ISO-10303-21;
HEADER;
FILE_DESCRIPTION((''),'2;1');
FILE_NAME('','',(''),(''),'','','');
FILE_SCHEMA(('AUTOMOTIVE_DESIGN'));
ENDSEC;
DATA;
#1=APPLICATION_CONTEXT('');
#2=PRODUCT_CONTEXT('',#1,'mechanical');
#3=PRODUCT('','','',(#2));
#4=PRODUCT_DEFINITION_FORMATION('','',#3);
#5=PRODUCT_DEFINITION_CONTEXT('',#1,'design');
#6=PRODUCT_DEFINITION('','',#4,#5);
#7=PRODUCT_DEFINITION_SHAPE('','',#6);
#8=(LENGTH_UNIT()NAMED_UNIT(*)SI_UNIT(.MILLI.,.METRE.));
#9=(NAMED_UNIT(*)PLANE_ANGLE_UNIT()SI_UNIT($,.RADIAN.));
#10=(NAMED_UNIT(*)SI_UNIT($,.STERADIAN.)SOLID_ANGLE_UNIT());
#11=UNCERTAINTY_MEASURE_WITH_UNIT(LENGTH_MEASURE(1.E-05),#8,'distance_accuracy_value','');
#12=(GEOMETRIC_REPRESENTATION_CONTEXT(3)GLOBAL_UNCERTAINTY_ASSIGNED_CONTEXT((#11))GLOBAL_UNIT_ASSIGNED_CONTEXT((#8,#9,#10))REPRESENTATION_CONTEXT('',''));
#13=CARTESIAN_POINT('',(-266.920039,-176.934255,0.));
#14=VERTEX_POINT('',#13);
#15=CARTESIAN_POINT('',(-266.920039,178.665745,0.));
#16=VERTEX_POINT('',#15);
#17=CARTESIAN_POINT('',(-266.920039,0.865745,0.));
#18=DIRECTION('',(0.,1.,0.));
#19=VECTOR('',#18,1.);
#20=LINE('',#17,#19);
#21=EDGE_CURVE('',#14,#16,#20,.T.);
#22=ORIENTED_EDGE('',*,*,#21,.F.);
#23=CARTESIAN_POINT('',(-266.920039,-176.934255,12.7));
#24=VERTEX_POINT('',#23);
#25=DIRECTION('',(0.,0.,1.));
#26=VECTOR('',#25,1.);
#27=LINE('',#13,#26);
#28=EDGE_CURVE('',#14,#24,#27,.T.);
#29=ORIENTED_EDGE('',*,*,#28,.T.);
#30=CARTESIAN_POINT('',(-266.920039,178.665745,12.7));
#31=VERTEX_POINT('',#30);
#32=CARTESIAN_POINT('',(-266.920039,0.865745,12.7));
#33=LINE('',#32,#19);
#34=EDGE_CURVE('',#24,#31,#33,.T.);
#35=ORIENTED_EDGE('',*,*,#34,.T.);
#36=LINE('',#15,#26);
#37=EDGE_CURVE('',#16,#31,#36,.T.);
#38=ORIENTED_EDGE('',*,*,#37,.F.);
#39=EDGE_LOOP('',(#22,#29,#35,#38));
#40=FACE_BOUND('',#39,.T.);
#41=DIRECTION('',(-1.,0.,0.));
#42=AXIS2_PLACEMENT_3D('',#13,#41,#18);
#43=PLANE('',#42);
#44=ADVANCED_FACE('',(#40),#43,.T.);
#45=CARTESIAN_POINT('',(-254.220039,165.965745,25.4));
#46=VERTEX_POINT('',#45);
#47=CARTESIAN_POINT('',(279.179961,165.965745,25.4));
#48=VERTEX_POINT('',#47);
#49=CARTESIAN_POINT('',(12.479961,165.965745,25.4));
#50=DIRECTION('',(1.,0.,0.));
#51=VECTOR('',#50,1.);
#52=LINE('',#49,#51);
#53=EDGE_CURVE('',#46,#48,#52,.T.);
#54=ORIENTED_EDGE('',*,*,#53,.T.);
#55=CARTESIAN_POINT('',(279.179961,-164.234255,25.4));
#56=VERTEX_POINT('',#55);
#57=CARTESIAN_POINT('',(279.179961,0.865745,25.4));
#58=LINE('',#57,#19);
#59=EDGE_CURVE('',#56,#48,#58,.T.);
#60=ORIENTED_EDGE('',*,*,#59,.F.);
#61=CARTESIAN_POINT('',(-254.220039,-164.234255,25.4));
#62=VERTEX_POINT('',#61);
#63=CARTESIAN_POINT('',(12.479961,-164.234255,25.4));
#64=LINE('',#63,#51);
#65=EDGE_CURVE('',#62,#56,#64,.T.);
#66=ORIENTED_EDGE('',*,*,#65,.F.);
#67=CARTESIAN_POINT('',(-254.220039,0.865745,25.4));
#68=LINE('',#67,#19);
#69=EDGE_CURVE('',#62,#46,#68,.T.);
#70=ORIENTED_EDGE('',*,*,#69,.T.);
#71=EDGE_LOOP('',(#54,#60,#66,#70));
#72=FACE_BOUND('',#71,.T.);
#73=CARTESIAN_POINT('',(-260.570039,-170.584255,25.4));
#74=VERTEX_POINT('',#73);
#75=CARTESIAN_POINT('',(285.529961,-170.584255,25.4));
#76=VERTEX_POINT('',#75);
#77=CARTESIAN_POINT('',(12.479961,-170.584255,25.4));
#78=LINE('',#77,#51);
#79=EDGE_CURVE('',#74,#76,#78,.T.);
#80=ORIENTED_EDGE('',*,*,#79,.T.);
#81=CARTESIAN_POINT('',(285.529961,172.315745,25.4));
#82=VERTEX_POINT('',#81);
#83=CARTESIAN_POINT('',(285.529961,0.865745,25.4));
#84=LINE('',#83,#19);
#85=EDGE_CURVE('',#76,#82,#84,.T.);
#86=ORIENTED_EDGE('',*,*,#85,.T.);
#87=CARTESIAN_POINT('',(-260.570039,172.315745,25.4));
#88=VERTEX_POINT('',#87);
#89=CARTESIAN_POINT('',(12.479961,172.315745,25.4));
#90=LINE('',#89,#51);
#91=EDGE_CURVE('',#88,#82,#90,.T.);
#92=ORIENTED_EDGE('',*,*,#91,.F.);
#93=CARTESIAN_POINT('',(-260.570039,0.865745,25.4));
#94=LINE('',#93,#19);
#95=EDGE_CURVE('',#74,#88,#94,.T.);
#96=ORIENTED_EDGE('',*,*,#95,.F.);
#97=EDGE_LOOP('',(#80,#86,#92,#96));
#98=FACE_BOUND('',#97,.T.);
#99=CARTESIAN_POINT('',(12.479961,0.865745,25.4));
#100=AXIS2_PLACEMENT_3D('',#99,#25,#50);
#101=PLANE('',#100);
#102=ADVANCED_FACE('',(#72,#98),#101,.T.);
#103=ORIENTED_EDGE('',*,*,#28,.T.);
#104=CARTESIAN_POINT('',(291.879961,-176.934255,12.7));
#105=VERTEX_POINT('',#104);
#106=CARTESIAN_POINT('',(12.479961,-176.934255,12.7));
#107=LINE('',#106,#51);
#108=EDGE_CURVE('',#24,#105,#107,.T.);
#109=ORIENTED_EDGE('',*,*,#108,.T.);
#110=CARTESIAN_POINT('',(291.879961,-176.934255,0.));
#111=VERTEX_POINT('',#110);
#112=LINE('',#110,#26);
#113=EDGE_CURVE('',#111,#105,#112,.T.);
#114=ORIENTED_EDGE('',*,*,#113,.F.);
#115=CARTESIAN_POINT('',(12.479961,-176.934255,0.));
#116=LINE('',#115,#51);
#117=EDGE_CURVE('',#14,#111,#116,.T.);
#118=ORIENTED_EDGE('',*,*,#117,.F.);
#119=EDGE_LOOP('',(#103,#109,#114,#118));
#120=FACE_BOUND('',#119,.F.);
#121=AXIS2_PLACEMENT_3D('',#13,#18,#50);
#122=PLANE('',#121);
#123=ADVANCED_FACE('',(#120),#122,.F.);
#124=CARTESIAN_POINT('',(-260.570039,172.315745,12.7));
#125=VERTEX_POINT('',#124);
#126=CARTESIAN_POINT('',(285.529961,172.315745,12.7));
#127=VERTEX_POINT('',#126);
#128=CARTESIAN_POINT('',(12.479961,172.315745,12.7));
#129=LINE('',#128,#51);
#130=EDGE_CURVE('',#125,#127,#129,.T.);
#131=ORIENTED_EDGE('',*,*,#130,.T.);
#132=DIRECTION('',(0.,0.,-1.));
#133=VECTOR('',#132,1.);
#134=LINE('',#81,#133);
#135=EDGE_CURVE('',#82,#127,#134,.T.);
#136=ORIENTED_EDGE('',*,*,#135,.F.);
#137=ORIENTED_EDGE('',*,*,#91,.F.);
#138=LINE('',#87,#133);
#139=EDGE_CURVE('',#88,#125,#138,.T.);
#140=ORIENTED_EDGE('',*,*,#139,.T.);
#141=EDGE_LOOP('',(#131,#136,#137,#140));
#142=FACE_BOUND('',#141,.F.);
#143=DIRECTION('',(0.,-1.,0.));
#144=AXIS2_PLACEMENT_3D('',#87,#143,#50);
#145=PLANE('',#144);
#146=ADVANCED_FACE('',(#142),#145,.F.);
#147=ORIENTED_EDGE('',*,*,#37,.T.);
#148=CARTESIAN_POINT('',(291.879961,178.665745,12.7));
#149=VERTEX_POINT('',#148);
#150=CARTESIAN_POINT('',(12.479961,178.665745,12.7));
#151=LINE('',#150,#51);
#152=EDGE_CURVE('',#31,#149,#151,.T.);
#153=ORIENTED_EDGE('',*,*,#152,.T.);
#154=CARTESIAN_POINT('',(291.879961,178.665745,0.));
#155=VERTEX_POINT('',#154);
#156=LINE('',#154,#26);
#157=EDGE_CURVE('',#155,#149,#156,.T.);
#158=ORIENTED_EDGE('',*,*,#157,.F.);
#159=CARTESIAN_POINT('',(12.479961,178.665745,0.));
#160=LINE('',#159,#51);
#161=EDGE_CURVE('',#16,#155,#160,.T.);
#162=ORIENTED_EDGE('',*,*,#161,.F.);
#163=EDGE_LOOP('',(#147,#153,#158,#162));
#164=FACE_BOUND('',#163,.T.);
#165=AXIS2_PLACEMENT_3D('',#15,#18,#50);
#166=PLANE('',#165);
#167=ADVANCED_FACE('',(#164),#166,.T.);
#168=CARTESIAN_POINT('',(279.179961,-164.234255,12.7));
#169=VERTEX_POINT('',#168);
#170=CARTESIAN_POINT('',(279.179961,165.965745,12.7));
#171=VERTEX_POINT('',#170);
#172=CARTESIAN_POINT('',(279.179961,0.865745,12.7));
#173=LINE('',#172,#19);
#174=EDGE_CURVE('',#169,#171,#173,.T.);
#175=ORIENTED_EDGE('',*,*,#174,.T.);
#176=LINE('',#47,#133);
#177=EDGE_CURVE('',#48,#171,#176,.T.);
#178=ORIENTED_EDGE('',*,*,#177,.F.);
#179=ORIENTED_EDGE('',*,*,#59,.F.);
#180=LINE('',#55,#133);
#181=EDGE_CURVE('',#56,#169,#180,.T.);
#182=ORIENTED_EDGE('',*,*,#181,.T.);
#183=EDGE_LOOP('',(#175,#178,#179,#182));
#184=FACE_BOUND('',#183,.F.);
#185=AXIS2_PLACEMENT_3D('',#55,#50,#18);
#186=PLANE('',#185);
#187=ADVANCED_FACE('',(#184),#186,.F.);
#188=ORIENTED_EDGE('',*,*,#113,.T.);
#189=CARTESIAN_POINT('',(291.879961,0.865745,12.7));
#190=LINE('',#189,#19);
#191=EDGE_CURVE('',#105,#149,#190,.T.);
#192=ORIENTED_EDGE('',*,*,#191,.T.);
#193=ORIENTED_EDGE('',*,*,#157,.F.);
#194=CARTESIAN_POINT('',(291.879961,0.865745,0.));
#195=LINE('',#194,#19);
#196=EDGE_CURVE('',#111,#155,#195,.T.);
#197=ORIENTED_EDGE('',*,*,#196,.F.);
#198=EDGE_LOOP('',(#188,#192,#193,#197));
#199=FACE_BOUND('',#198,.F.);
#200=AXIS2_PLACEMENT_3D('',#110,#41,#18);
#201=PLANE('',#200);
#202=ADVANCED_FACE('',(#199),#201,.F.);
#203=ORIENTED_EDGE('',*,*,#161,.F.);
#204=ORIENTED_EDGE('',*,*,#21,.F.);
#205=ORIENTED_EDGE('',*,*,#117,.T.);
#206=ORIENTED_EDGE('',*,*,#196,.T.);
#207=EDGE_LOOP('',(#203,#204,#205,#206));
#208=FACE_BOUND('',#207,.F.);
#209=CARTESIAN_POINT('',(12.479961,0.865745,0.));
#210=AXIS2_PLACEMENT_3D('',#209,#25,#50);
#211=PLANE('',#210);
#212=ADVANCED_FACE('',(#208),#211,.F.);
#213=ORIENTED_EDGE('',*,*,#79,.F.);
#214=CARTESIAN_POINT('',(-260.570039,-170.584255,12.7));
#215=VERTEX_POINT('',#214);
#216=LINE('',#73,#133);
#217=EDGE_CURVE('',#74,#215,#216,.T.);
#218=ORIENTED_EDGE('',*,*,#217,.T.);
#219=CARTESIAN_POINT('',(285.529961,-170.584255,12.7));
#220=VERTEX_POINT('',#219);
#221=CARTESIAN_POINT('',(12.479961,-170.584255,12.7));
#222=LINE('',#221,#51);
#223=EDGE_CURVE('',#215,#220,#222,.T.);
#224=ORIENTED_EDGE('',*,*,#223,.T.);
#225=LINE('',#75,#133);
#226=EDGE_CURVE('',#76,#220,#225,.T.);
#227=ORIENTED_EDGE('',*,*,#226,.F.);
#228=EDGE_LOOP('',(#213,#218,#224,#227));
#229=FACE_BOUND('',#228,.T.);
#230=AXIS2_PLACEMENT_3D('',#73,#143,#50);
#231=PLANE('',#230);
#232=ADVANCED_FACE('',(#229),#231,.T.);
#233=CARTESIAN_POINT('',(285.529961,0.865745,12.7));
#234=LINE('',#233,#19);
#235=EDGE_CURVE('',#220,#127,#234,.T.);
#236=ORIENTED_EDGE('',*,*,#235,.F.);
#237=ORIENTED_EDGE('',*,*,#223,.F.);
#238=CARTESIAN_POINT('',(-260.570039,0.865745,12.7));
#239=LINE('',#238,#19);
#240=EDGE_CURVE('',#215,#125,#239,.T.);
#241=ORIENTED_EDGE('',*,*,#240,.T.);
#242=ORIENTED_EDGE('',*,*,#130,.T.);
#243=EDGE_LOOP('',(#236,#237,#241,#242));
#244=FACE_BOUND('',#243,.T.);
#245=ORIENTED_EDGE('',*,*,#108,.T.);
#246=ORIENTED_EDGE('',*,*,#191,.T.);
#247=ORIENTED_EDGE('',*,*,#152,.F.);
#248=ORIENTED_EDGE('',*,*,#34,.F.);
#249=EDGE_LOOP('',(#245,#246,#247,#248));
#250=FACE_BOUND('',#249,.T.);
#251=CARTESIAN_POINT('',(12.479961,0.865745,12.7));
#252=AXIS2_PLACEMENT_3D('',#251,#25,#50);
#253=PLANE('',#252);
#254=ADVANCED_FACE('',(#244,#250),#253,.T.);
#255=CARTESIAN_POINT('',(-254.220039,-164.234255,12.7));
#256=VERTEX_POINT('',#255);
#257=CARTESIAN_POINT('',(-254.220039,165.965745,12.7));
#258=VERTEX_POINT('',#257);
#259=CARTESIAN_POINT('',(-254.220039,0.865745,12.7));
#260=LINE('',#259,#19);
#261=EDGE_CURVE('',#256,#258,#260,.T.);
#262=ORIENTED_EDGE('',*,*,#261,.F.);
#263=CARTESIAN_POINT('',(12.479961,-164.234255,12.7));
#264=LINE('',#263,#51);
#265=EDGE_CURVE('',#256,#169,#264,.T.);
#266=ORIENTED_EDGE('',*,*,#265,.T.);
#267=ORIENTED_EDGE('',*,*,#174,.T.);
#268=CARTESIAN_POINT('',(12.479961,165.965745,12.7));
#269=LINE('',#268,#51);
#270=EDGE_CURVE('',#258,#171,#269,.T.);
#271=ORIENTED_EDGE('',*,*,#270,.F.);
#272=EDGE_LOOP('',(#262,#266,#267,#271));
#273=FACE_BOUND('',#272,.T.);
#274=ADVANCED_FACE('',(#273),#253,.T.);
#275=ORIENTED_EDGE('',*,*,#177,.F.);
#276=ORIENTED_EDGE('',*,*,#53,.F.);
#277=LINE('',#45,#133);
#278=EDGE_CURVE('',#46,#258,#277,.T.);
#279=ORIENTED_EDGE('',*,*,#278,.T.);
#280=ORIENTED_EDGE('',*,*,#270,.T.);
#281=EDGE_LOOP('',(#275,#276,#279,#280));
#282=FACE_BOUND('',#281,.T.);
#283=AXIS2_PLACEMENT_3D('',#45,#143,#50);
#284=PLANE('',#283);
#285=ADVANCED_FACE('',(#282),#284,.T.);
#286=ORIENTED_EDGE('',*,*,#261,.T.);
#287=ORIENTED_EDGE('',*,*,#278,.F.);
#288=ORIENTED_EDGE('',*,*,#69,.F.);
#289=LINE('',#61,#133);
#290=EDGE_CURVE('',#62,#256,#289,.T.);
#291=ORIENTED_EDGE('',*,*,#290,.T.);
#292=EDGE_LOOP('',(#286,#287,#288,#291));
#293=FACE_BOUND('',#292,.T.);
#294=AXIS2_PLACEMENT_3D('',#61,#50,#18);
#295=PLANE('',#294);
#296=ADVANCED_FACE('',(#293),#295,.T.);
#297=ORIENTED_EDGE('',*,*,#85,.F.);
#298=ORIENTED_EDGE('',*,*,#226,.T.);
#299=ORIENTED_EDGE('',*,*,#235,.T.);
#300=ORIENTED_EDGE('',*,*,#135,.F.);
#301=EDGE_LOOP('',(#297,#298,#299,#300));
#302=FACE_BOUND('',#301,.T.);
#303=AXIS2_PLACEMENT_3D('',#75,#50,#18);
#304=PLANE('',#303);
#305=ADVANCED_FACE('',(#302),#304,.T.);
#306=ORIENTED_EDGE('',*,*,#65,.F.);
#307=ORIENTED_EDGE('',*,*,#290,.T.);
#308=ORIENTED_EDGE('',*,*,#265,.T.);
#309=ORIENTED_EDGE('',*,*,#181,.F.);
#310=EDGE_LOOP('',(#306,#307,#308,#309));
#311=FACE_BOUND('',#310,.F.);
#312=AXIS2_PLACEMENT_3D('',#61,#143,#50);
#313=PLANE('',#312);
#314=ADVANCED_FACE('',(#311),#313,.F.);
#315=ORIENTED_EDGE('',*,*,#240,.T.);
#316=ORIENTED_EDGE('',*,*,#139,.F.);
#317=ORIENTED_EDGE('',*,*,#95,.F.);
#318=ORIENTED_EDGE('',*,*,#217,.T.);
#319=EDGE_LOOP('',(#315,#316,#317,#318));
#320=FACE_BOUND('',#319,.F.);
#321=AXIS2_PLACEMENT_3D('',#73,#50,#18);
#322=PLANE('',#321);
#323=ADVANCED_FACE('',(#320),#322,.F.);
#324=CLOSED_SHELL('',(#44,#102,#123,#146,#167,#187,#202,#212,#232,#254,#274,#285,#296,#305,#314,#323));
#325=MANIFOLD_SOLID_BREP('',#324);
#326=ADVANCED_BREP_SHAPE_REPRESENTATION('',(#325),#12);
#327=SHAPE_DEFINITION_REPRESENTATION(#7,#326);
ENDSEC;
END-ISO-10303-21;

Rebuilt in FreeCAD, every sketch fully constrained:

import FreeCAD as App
import Part
import Sketcher
Q = App.Units.Quantity

doc = App.newDocument("Part")
body = doc.addObject("PartDesign::Body", "Body")

sketch1 = body.newObject("Sketcher::SketchObject", "Sketch")
sketch1.AttachmentSupport = (doc.getObject("XY_Plane"), [""])
sketch1.MapMode = "FlatFace"
sketch1.addGeometry([
    Part.LineSegment(App.Vector(-267, 179, 0), App.Vector(-267, -177, 0)),
    Part.LineSegment(App.Vector(-267, -177, 0), App.Vector(292, -177, 0)),
    Part.LineSegment(App.Vector(292, -177, 0), App.Vector(292, 179, 0)),
    Part.LineSegment(App.Vector(292, 179, 0), App.Vector(-267, 179, 0)),
], False)
sketch1.addConstraint([
    Sketcher.Constraint("Coincident", 0, 2, 1, 1),
    Sketcher.Constraint("Coincident", 1, 2, 2, 1),
    Sketcher.Constraint("Coincident", 2, 2, 3, 1),
    Sketcher.Constraint("Coincident", 3, 2, 0, 1),
    Sketcher.Constraint("Vertical", 0),
    Sketcher.Constraint("Horizontal", 1),
    Sketcher.Constraint("Vertical", 2),
    Sketcher.Constraint("Horizontal", 3),
    Sketcher.Constraint("DistanceX", 1, 1, 1, 2, Q("22 in")),
    Sketcher.Constraint("DistanceY", 0, 2, 0, 1, Q("14 in")),
    Sketcher.Constraint("DistanceX", 0, 2, -1, 1, Q("266.920039 mm")),
    Sketcher.Constraint("DistanceY", 0, 2, -1, 1, Q("176.934255 mm")),
])
pad1 = body.newObject("PartDesign::Pad", "Pad")
pad1.Profile = sketch1
pad1.Length = Q("1 in")

sketch2 = body.newObject("Sketcher::SketchObject", "Sketch001")
sketch2.AttachmentSupport = (doc.getObject("XY_Plane"), [""])
sketch2.MapMode = "FlatFace"
sketch2.AttachmentOffset = App.Placement(App.Vector(0, 0, 1 * 25.4), App.Rotation())
sketch2.addGeometry([
    Part.LineSegment(App.Vector(-254, 166, 0), App.Vector(-254, -164, 0)),
    Part.LineSegment(App.Vector(-254, -164, 0), App.Vector(279, -164, 0)),
    Part.LineSegment(App.Vector(279, -164, 0), App.Vector(279, 166, 0)),
    Part.LineSegment(App.Vector(279, 166, 0), App.Vector(-254, 166, 0)),
], False)
sketch2.addConstraint([
    Sketcher.Constraint("Coincident", 0, 2, 1, 1),
    Sketcher.Constraint("Coincident", 1, 2, 2, 1),
    Sketcher.Constraint("Coincident", 2, 2, 3, 1),
    Sketcher.Constraint("Coincident", 3, 2, 0, 1),
    Sketcher.Constraint("Vertical", 0),
    Sketcher.Constraint("Horizontal", 1),
    Sketcher.Constraint("Vertical", 2),
    Sketcher.Constraint("Horizontal", 3),
    Sketcher.Constraint("DistanceX", 1, 1, 1, 2, Q("21 in")),
    Sketcher.Constraint("DistanceY", 0, 2, 0, 1, Q("13 in")),
    Sketcher.Constraint("DistanceX", 0, 2, -1, 1, Q("254.220039 mm")),
    Sketcher.Constraint("DistanceY", 0, 2, -1, 1, Q("164.234255 mm")),
])
pocket1 = body.newObject("PartDesign::Pocket", "Pocket")
pocket1.Profile = sketch2
pocket1.Length = Q("0.5 in")

sketch3 = body.newObject("Sketcher::SketchObject", "Sketch002")
sketch3.AttachmentSupport = (doc.getObject("XY_Plane"), [""])
sketch3.MapMode = "FlatFace"
sketch3.AttachmentOffset = App.Placement(App.Vector(0, 0, 1 * 25.4), App.Rotation())
sketch3.addGeometry([
    Part.LineSegment(App.Vector(-267, 179, 0), App.Vector(-267, -177, 0)),
    Part.LineSegment(App.Vector(-267, -177, 0), App.Vector(292, -177, 0)),
    Part.LineSegment(App.Vector(292, -177, 0), App.Vector(292, 179, 0)),
    Part.LineSegment(App.Vector(292, 179, 0), App.Vector(-267, 179, 0)),
    Part.LineSegment(App.Vector(286, -171, 0), App.Vector(-261, -171, 0)),
    Part.LineSegment(App.Vector(-261, -171, 0), App.Vector(-261, 172, 0)),
    Part.LineSegment(App.Vector(-261, 172, 0), App.Vector(286, 172, 0)),
    Part.LineSegment(App.Vector(286, 172, 0), App.Vector(286, -171, 0)),
], False)
sketch3.addConstraint([
    Sketcher.Constraint("Coincident", 0, 2, 1, 1),
    Sketcher.Constraint("Coincident", 1, 2, 2, 1),
    Sketcher.Constraint("Coincident", 2, 2, 3, 1),
    Sketcher.Constraint("Coincident", 3, 2, 0, 1),
    Sketcher.Constraint("Coincident", 4, 2, 5, 1),
    Sketcher.Constraint("Coincident", 5, 2, 6, 1),
    Sketcher.Constraint("Coincident", 6, 2, 7, 1),
    Sketcher.Constraint("Coincident", 7, 2, 4, 1),
    Sketcher.Constraint("Vertical", 0),
    Sketcher.Constraint("Horizontal", 1),
    Sketcher.Constraint("Vertical", 2),
    Sketcher.Constraint("Horizontal", 3),
    Sketcher.Constraint("Horizontal", 4),
    Sketcher.Constraint("Vertical", 5),
    Sketcher.Constraint("Horizontal", 6),
    Sketcher.Constraint("Vertical", 7),
    Sketcher.Constraint("DistanceX", 1, 1, 1, 2, Q("22 in")),
    Sketcher.Constraint("DistanceY", 0, 2, 0, 1, Q("14 in")),
    Sketcher.Constraint("DistanceX", 4, 2, 4, 1, Q("21.5 in")),
    Sketcher.Constraint("DistanceY", 5, 1, 5, 2, Q("13.5 in")),
    Sketcher.Constraint("DistanceX", 0, 2, 4, 2, Q("0.25 in")),
    Sketcher.Constraint("DistanceY", 0, 2, 4, 2, Q("0.25 in")),
    Sketcher.Constraint("DistanceX", 0, 2, -1, 1, Q("266.920039 mm")),
    Sketcher.Constraint("DistanceY", 0, 2, -1, 1, Q("176.934255 mm")),
])
pocket2 = body.newObject("PartDesign::Pocket", "Pocket001")
pocket2.Profile = sketch3
pocket2.Length = Q("0.5 in")

doc.recompute()
